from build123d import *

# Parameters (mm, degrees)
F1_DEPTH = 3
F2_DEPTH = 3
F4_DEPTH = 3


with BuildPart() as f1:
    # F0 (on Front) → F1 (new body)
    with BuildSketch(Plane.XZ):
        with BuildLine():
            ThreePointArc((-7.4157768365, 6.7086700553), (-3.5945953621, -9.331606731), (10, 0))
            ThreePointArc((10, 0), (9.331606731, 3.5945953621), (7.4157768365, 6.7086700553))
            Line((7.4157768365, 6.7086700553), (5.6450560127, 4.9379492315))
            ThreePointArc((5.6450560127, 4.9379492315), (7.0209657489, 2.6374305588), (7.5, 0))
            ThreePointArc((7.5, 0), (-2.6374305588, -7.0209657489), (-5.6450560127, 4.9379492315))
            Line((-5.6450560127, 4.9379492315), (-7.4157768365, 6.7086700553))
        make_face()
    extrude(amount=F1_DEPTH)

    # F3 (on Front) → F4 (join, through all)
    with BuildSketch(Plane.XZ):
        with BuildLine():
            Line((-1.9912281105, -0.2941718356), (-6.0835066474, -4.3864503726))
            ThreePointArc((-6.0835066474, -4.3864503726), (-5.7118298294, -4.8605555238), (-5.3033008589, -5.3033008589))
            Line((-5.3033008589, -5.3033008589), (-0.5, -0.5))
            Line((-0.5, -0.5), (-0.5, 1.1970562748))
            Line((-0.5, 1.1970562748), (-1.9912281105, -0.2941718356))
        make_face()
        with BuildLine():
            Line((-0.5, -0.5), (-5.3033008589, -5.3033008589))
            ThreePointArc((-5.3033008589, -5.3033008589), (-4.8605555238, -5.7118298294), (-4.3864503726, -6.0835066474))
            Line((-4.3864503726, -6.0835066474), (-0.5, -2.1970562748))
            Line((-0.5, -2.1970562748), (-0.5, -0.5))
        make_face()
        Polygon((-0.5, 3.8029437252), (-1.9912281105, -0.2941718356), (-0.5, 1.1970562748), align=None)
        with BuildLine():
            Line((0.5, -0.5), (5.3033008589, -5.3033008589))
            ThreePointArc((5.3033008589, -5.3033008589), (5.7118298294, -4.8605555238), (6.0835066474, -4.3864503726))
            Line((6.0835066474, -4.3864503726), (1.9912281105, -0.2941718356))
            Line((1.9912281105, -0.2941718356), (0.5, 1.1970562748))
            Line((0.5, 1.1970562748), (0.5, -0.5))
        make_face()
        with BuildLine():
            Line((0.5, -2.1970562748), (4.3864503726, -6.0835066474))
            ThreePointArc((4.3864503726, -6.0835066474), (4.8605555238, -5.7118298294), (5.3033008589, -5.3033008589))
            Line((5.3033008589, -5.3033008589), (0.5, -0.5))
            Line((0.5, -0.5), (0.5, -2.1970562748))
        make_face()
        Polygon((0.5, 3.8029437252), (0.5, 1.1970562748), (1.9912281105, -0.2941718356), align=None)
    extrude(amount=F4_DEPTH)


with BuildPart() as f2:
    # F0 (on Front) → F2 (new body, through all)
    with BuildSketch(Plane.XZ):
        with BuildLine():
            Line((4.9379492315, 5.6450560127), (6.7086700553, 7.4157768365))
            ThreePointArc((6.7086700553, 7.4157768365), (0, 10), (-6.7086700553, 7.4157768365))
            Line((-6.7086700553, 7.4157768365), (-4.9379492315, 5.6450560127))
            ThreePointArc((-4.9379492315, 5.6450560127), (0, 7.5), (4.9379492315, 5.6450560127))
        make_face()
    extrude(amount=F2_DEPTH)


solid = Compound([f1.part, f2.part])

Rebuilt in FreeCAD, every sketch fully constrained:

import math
import FreeCAD as App
import Part
import Sketcher

V = App.Vector
Q = App.Units.Quantity

doc = App.newDocument("Part")
body = doc.addObject("PartDesign::Body", "Body")

# Sketch on XZ plane
sketch1 = body.newObject("Sketcher::SketchObject", "Sketch")
sketch1.AttachmentSupport = (doc.getObject("XZ_Plane"), [""])
sketch1.MapMode = "FlatFace"
sketch1.addGeometry([
    Part.ArcOfCircle(Part.Circle(V(0, 0, 0), V(0, 0, 1), 10), math.radians(138), math.radians(360)),  # 0
    Part.ArcOfCircle(Part.Circle(V(0, 0, 0), V(0, 0, 1), 10), math.radians(0), math.radians(42)),  # 1
    Part.LineSegment(V(7.4, 6.7, 0), V(5.6, 4.9, 0)),  # 2
    Part.ArcOfCircle(Part.Circle(V(0, 0, 0), V(0, 0, 1), 7.5), math.radians(0), math.radians(41)),  # 3
    Part.ArcOfCircle(Part.Circle(V(0, 0, 0), V(0, 0, 1), 7.5), math.radians(139), math.radians(360)),  # 4
    Part.LineSegment(V(-5.6, 4.9, 0), V(-7.4, 6.7, 0)),  # 5
], False)
sketch1.addConstraint([
    Sketcher.Constraint("Tangent", 0, 2, 1, 1),
    Sketcher.Constraint("Coincident", 1, 2, 2, 1),
    Sketcher.Constraint("Coincident", 2, 2, 3, 2),
    Sketcher.Constraint("Tangent", 3, 1, 4, 2),
    Sketcher.Constraint("Coincident", 4, 1, 5, 1),
    Sketcher.Constraint("Coincident", 5, 2, 0, 1),
    Sketcher.Constraint("Coincident", 0, 3, -1, 1),
    Sketcher.Constraint("Coincident", 3, 3, -1, 1),
    Sketcher.Constraint("Equal", 0, 1),
    Sketcher.Constraint("Equal", 3, 4),
    Sketcher.Constraint("PointOnObject", 0, 2, -1),
    Sketcher.Constraint("PointOnObject", 3, 1, -1),
    Sketcher.Constraint("Perpendicular", 2, 5),
    Sketcher.Constraint("Horizontal", 2, 2, 4, 1),
    Sketcher.Constraint("Horizontal", 1, 2, 5, 2),
    Sketcher.Constraint("Radius", 0, Q("10 mm")),
    Sketcher.Constraint("Radius", 3, Q("7.5 mm")),
    Sketcher.Constraint("DistanceY", -1, 1, 1, 2, Q("6.70867 mm")),
])
pad1 = body.newObject("PartDesign::Pad", "Pad")
pad1.Profile = sketch1
pad1.Length = 3

# Sketch on XZ plane
sketch2 = body.newObject("Sketcher::SketchObject", "Sketch001")
sketch2.AttachmentSupport = (doc.getObject("XZ_Plane"), [""])
sketch2.MapMode = "FlatFace"
sketch2.addGeometry([
    Part.LineSegment(V(-2, -0.3, 0), V(-6.1, -4.4, 0)),  # 0
    Part.ArcOfCircle(Part.Circle(V(0, 0, 0), V(0, 0, 1), 7.5), math.radians(-144.21), math.radians(-135)),  # 1
    Part.ArcOfCircle(Part.Circle(V(0, 0, 0), V(0, 0, 1), 7.5), math.radians(-135), math.radians(-125.79)),  # 2
    Part.LineSegment(V(-4.4, -6.1, 0), V(-0.5, -2.2, 0)),  # 3
    Part.LineSegment(V(-0.5, -2.2, 0), V(-0.5, 3.8, 0)),  # 4
    Part.LineSegment(V(-0.5, 3.8, 0), V(-2, -0.3, 0)),  # 5
    Part.ArcOfCircle(Part.Circle(V(0, 0, 0), V(0, 0, 1), 7.5), math.radians(-45), math.radians(-35.79)),  # 6
    Part.LineSegment(V(6.1, -4.4, 0), V(2, -0.3, 0)),  # 7
    Part.LineSegment(V(2, -0.3, 0), V(0.5, 3.8, 0)),  # 8
    Part.LineSegment(V(0.5, 3.8, 0), V(0.5, -2.2, 0)),  # 9
    Part.LineSegment(V(0.5, -2.2, 0), V(4.4, -6.1, 0)),  # 10
    Part.ArcOfCircle(Part.Circle(V(0, 0, 0), V(0, 0, 1), 7.5), math.radians(-54.21), math.radians(-45)),  # 11
], False)
sketch2.addConstraint([
    Sketcher.Constraint("Coincident", 0, 2, 1, 1),
    Sketcher.Constraint("Tangent", 1, 2, 2, 1),
    Sketcher.Constraint("Coincident", 2, 2, 3, 1),
    Sketcher.Constraint("Coincident", 3, 2, 4, 1),
    Sketcher.Constraint("Coincident", 4, 2, 5, 1),
    Sketcher.Constraint("Coincident", 5, 2, 0, 1),
    Sketcher.Constraint("Coincident", 6, 2, 7, 1),
    Sketcher.Constraint("Coincident", 7, 2, 8, 1),
    Sketcher.Constraint("Coincident", 8, 2, 9, 1),
    Sketcher.Constraint("Coincident", 9, 2, 10, 1),
    Sketcher.Constraint("Coincident", 10, 2, 11, 1),
    Sketcher.Constraint("Tangent", 11, 2, 6, 1),
    Sketcher.Constraint("Vertical", 4),
    Sketcher.Constraint("Vertical", 9),
    Sketcher.Constraint("Coincident", 1, 3, -1, 1),
    Sketcher.Constraint("Coincident", 6, 3, -1, 1),
    Sketcher.Constraint("Equal", 1, 2),
    Sketcher.Constraint("Equal", 2, 6),
    Sketcher.Constraint("Equal", 6, 11),
    Sketcher.Constraint("Symmetric", 5, 2, 7, 2, -2),
    Sketcher.Constraint("Symmetric", 4, 2, 8, 2, -2),
    Sketcher.Constraint("Parallel", 0, 3),
    Sketcher.Constraint("Perpendicular", 3, 7),
    Sketcher.Constraint("Parallel", 7, 10),
    Sketcher.Constraint("Horizontal", 0, 2, 6, 2),
    Sketcher.Constraint("Horizontal", 3, 2, 9, 2),
    Sketcher.Constraint("Horizontal", 1, 2, 11, 2),
    Sketcher.Constraint("Radius", 1, Q("7.5 mm")),
    Sketcher.Constraint("DistanceY", 4, 1, 4, 2, Q("6 mm")),
    Sketcher.Constraint("Angle", 5, Q("-110 deg")),
    Sketcher.Constraint("DistanceX", 4, 2, 8, 2, Q("1 mm")),
    Sketcher.Constraint("DistanceX", 1, 2, -1, 1, Q("5.303301 mm")),
    Sketcher.Constraint("Distance", 3, Q("5.496271 mm")),
    Sketcher.Constraint("Distance", 5, Q("4.360059 mm")),
])
pad2 = body.newObject("PartDesign::Pad", "Pad001")
pad2.Profile = sketch2
pad2.Length = 3
body2 = doc.addObject("PartDesign::Body", "Body001")

# Sketch on XZ plane
sketch3 = body2.newObject("Sketcher::SketchObject", "Sketch002")
sketch3.AttachmentSupport = (doc.getObject("XZ_Plane001"), [""])
sketch3.MapMode = "FlatFace"
sketch3.addGeometry([
    Part.LineSegment(V(4.9, 5.6, 0), V(6.7, 7.4, 0)),
    Part.ArcOfCircle(Part.Circle(V(0, 0, 0), V(0, 0, 1), 10), math.radians(48), math.radians(132)),
    Part.LineSegment(V(-6.7, 7.4, 0), V(-4.9, 5.6, 0)),
    Part.ArcOfCircle(Part.Circle(V(0, 0, 0), V(0, 0, 1), 7.5), math.radians(49), math.radians(131)),
], False)
sketch3.addConstraint([
    Sketcher.Constraint("Coincident", 0, 2, 1, 1),
    Sketcher.Constraint("Coincident", 1, 2, 2, 1),
    Sketcher.Constraint("Coincident", 2, 2, 3, 2),
    Sketcher.Constraint("Coincident", 3, 1, 0, 1),
    Sketcher.Constraint("Coincident", 1, 3, -1, 1),
    Sketcher.Constraint("Coincident", 3, 3, -1, 1),
    Sketcher.Constraint("Perpendicular", 0, 2),
    Sketcher.Constraint("Horizontal", 0, 2, 1, 2),
    Sketcher.Constraint("Horizontal", 2, 2, 3, 1),
    Sketcher.Constraint("Radius", 1, Q("10 mm")),
    Sketcher.Constraint("Radius", 3, Q("7.5 mm")),
    Sketcher.Constraint("DistanceX", 2, 2, 3, 1, Q("9.875898 mm")),
])
pad3 = body2.newObject("PartDesign::Pad", "Pad002")
pad3.Profile = sketch3
pad3.Length = 3

doc.recompute()
